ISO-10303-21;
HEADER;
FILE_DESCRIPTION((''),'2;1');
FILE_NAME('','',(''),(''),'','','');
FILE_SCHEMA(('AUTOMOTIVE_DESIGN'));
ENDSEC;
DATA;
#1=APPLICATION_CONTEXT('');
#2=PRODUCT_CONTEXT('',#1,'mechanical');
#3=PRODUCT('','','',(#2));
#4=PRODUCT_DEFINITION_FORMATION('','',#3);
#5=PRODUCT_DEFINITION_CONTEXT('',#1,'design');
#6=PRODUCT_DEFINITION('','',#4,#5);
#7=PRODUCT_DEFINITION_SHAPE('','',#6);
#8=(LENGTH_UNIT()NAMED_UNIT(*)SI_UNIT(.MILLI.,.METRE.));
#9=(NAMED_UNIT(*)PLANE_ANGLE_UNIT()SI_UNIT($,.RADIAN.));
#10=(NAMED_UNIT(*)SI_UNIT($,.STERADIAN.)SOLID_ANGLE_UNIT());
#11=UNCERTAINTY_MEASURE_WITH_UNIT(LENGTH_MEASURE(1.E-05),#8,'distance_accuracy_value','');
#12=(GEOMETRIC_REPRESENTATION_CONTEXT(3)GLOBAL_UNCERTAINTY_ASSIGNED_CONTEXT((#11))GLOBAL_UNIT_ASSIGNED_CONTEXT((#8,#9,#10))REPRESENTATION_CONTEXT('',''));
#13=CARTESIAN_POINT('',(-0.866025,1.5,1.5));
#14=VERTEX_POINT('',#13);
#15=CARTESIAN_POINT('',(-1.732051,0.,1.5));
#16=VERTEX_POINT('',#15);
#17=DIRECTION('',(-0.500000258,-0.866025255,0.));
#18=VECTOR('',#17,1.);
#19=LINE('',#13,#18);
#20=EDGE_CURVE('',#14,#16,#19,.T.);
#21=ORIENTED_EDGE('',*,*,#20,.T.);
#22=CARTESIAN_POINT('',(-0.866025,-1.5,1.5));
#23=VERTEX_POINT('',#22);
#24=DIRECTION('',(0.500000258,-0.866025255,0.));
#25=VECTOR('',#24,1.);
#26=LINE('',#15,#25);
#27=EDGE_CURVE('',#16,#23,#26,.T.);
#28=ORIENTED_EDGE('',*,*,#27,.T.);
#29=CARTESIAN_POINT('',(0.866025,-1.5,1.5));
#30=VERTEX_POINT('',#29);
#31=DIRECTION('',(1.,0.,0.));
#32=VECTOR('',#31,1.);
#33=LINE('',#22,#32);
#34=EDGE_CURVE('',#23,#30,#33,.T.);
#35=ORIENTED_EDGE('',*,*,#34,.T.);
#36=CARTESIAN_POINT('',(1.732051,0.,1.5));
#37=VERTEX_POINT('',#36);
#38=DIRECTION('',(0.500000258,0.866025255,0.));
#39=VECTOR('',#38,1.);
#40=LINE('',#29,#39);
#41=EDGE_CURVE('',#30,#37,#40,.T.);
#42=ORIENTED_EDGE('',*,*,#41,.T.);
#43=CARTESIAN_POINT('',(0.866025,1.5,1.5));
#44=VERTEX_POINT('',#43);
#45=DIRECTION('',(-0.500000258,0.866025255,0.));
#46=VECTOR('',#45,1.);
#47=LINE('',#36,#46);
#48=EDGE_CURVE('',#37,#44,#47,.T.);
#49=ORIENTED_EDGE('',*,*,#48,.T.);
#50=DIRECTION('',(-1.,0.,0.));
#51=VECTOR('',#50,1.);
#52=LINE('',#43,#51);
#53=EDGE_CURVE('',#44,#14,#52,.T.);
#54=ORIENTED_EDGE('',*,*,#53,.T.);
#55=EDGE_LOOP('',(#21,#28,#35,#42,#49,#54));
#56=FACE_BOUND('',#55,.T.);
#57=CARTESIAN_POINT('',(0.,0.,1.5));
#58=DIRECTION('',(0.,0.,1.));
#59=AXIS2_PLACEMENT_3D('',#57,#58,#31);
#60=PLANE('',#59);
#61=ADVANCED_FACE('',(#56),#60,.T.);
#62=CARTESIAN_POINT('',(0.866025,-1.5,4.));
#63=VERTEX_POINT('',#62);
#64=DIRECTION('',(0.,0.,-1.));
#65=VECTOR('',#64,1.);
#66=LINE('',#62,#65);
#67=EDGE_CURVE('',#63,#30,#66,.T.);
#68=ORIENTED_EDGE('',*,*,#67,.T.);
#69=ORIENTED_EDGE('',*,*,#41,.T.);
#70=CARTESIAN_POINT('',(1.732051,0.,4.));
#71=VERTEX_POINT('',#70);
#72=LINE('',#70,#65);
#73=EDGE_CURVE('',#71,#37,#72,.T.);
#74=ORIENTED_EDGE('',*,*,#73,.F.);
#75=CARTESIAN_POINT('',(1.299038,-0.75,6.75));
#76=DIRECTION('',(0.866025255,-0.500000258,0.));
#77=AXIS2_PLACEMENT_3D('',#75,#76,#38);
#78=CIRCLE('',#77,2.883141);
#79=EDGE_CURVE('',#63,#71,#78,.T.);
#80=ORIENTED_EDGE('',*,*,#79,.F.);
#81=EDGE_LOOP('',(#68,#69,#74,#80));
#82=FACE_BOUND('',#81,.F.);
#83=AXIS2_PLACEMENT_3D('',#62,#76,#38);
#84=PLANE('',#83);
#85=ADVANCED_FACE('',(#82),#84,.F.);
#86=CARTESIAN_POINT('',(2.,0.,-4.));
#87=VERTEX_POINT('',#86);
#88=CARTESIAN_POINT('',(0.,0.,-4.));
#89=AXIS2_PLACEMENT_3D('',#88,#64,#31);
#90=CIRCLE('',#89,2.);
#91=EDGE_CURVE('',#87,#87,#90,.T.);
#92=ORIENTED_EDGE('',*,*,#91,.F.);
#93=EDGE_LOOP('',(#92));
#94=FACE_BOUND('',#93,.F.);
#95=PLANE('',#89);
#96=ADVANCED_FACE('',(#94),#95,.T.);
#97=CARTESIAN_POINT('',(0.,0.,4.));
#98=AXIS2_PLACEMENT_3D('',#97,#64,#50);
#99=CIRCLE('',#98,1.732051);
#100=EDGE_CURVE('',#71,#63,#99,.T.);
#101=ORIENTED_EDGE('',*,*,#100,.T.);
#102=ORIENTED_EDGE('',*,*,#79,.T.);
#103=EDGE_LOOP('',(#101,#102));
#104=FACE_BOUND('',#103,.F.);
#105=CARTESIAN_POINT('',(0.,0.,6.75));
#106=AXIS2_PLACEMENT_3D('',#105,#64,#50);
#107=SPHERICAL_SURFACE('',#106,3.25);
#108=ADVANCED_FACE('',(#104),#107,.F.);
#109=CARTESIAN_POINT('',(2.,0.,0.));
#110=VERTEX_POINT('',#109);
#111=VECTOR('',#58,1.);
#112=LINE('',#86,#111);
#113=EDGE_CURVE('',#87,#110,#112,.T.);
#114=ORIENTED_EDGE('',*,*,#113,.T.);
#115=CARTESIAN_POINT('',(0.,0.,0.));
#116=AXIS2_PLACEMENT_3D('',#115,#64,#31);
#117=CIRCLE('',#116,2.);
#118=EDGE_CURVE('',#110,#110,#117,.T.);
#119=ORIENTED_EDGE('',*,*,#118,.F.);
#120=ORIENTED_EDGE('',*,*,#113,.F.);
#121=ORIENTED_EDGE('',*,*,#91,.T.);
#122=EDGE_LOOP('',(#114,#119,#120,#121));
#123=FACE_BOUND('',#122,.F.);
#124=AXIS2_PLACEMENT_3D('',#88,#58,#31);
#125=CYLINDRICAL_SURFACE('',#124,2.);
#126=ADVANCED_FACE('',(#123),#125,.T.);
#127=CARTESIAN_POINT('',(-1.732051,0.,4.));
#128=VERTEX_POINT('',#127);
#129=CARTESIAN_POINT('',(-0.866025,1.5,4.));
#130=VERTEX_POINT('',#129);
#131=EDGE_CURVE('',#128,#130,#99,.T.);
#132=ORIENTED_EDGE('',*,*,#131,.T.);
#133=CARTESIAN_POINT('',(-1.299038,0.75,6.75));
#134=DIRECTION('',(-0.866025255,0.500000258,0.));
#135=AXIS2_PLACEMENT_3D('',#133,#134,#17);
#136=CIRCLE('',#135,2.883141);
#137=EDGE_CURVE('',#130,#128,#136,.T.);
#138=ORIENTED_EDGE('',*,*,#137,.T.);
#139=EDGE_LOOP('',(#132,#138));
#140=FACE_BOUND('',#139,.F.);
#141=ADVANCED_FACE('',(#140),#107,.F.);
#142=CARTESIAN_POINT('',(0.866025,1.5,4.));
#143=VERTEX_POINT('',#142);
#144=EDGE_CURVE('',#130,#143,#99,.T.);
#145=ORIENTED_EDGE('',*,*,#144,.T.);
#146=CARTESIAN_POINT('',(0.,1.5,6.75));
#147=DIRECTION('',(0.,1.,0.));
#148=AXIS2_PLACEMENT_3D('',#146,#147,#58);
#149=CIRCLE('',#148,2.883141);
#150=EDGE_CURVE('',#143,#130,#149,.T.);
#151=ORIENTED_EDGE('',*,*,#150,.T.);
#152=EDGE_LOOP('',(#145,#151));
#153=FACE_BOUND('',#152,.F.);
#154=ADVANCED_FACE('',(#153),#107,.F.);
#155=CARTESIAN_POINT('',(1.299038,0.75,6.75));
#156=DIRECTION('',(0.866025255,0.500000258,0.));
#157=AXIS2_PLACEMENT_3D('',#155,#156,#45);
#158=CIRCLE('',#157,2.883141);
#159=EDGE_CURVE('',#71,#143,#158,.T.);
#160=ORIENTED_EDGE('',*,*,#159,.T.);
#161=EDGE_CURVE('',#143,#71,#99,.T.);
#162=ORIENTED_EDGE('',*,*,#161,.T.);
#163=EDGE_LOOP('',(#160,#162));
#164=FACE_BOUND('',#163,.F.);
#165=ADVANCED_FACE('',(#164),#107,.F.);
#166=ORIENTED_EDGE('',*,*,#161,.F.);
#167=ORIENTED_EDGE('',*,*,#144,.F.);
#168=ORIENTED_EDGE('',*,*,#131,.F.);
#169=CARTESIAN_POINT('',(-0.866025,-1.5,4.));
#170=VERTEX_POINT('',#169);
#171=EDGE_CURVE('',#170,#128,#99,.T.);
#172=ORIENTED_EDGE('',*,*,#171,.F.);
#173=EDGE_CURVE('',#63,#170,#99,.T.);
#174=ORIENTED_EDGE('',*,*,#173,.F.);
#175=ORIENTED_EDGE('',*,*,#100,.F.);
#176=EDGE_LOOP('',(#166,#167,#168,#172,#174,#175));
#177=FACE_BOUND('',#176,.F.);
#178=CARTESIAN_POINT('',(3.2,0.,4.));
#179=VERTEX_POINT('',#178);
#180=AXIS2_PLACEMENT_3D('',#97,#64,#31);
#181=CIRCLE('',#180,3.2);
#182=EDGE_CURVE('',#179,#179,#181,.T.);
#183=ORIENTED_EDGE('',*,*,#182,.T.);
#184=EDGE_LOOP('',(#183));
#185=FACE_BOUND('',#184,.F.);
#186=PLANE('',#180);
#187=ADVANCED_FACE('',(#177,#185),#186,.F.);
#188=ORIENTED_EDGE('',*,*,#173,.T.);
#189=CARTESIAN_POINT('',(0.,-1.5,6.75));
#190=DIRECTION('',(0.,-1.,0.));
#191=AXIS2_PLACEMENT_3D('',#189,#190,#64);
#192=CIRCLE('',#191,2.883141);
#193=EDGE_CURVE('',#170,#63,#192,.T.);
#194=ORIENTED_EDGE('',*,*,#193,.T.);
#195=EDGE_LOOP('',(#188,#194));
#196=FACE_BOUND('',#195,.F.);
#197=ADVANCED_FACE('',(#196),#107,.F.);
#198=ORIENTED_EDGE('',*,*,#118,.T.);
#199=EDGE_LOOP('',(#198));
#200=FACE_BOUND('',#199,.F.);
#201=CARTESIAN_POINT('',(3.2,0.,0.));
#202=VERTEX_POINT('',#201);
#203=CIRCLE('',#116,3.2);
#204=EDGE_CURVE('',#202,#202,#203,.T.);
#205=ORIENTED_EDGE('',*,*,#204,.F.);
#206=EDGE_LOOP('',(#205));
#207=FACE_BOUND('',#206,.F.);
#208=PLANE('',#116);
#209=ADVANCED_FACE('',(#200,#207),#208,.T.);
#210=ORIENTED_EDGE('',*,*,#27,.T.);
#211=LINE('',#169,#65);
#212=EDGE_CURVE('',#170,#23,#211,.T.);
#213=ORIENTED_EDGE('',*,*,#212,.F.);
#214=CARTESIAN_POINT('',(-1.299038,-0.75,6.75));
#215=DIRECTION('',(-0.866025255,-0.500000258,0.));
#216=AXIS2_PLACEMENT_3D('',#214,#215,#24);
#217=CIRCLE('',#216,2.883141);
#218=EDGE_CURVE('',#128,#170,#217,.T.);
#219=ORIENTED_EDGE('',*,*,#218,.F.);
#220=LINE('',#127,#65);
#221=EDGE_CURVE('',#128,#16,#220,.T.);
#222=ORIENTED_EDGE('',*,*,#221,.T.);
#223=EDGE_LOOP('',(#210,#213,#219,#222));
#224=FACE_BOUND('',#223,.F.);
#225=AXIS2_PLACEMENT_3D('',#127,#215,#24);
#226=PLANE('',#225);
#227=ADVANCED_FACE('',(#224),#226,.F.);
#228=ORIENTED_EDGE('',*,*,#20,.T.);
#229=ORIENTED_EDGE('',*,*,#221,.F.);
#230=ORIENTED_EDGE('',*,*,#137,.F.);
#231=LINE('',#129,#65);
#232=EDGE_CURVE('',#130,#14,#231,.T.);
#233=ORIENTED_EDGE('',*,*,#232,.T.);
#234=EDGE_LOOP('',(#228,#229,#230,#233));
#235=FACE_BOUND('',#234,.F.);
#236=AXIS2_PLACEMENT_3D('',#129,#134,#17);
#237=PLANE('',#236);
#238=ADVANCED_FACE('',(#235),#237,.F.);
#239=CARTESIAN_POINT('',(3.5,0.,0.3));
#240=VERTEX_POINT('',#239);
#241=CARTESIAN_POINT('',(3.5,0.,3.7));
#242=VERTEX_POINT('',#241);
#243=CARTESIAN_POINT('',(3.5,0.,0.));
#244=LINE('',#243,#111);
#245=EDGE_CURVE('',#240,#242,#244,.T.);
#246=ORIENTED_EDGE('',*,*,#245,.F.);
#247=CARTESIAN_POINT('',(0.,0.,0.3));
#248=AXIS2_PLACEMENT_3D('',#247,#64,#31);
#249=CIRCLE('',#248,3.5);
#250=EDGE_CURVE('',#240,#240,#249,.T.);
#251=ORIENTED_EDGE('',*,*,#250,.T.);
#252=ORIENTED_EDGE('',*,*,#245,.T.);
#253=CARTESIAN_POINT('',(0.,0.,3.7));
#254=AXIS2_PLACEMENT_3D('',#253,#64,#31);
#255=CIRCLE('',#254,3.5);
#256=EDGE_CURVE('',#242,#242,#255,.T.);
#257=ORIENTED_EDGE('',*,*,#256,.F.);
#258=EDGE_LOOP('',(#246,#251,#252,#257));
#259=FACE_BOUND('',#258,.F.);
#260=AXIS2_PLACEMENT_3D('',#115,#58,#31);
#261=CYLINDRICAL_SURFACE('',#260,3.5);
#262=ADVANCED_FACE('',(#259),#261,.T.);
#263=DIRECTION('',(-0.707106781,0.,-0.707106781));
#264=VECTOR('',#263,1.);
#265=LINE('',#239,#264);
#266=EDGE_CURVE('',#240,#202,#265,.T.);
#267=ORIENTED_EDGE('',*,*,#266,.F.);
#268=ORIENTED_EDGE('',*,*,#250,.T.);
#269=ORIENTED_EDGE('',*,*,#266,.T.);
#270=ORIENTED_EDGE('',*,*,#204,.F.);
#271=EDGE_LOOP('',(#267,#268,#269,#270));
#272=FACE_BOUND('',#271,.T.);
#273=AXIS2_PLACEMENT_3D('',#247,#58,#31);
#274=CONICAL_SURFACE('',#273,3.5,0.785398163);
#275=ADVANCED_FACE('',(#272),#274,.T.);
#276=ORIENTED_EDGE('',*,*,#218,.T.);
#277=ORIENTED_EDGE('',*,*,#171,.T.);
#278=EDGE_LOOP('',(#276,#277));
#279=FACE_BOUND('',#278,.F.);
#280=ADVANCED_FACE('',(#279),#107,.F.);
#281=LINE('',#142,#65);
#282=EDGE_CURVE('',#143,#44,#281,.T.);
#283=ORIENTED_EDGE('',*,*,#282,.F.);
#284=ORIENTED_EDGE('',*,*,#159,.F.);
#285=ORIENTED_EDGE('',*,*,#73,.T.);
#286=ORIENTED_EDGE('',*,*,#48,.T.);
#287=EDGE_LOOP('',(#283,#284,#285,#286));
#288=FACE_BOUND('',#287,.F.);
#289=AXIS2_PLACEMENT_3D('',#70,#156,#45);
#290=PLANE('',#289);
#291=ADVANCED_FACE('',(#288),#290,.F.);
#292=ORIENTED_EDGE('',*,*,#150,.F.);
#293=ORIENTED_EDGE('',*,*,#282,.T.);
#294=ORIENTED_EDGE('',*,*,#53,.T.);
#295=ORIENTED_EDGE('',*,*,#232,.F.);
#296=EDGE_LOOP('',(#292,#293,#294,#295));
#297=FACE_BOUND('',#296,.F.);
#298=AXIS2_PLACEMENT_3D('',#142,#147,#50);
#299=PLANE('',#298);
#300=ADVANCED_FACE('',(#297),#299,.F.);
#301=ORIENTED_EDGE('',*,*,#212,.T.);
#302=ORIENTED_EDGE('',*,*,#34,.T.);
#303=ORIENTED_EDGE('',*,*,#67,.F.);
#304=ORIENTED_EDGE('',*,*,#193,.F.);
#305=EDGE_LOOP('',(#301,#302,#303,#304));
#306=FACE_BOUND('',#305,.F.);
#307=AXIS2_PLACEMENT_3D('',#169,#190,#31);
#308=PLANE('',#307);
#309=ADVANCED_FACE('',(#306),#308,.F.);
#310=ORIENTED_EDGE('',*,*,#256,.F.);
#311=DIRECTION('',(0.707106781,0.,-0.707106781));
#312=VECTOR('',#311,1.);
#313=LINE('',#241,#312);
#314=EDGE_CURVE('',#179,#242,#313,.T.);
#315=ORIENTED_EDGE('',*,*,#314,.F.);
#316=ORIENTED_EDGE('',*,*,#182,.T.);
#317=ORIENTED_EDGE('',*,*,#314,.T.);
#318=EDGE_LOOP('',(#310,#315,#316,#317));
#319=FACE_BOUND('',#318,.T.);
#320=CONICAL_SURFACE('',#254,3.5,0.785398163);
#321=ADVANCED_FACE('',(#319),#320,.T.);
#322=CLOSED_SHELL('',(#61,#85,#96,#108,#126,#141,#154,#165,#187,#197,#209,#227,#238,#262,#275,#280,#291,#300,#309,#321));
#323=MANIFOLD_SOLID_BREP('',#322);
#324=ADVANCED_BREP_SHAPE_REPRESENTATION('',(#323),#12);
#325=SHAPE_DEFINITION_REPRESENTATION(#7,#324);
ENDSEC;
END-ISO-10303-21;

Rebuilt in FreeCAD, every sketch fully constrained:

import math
import FreeCAD as App
import Part
import Sketcher

V = App.Vector
Q = App.Units.Quantity


def edges_at(feature, points):
    """Names of the edges that pass closest to the given points."""
    edges = feature.Shape.Edges
    near = lambda p: min(range(len(edges)), key=lambda i: edges[i].distToShape(Part.Vertex(*p))[0])
    return sorted({f"Edge{near(p) + 1}" for p in points})


def add_polygon(sketch, points):
    """Adds a closed chain of lines whose ends are joined by coincident constraints."""
    first, n = sketch.GeometryCount, len(points)
    for a, b in zip(points, points[1:] + points[:1]):
        sketch.addGeometry(Part.LineSegment(App.Vector(*a, 0), App.Vector(*b, 0)), False)
    for i in range(n):
        sketch.addConstraint(Sketcher.Constraint("Coincident", first + i, 2, first + (i + 1) % n, 1))

doc = App.newDocument("Part")
body = doc.addObject("PartDesign::Body", "Body")

sketch1 = doc.addObject("Sketcher::SketchObject", "Sketch")
body.addObject(sketch1)
sketch1.AttachmentSupport = (doc.XZ_Plane, [""])
sketch1.MapMode = "FlatFace"
add_polygon(sketch1, [(3.5, 4), (0, 4), (0, -4), (2, -4), (2, 0), (3.5, 0)])
sketch1.addConstraint([
    Sketcher.Constraint("Horizontal", 0),
    Sketcher.Constraint("Vertical", 1),
    Sketcher.Constraint("Horizontal", 2),
    Sketcher.Constraint("Vertical", 3),
    Sketcher.Constraint("Horizontal", 4),
    Sketcher.Constraint("Vertical", 5),
    Sketcher.Constraint("Symmetric", 0, 2, 1, 2, -1, 1),
    Sketcher.Constraint("PointOnObject", 3, 2, -1),
    Sketcher.Constraint("DistanceX", 2, 1, 2, 2, Q("2 mm")),
    Sketcher.Constraint("DistanceY", 1, 2, 1, 1, Q("8 mm")),
    Sketcher.Constraint("DistanceX", 0, 2, 0, 1, Q("3.5 mm")),
])
revolution = doc.addObject("PartDesign::Revolution", "Revolution")
body.addObject(revolution)
revolution.Profile = sketch1
revolution.ReferenceAxis = (sketch1, ["V_Axis"])
revolution.Angle = 360

sketch2 = doc.addObject("Sketcher::SketchObject", "Sketch001")
body.addObject(sketch2)
sketch2.AttachmentSupport = (doc.XY_Plane, [""])
sketch2.MapMode = "FlatFace"
sketch2.AttachmentOffset = App.Placement(V(0, 0, 4), App.Rotation())
add_polygon(sketch2, [(1.7, 0), (0.9, 1.5), (-0.9, 1.5), (-1.7, 0), (-0.9, -1.5), (0.9, -1.5)])
sketch2.addConstraint([
    Sketcher.Constraint("Horizontal", 1),
    Sketcher.Constraint("Horizontal", 4),
    Sketcher.Constraint("Symmetric", 0, 2, 3, 2, -1, 1),
    Sketcher.Constraint("Symmetric", 2, 2, 5, 2, -1, 1),
    Sketcher.Constraint("PointOnObject", 2, 2, -1),
    Sketcher.Constraint("Parallel", 2, 5),
    Sketcher.Constraint("Vertical", 1, 2, 3, 2),
    Sketcher.Constraint("Angle", 0, Q("120.000017 deg")),
    Sketcher.Constraint("DistanceY", 3, 2, 1, 2, Q("3 mm")),
    Sketcher.Constraint("DistanceX", 1, 2, 1, 1, Q("1.73205 mm")),
])
pocket1 = doc.addObject("PartDesign::Pocket", "Pocket")
body.addObject(pocket1)
pocket1.Profile = sketch2
pocket1.Length = 2.5

sketch3 = doc.addObject("Sketcher::SketchObject", "Sketch002")
body.addObject(sketch3)
sketch3.AttachmentSupport = (doc.XZ_Plane, [""])
sketch3.MapMode = "FlatFace"
sketch3.addGeometry([
    Part.LineSegment(V(0, 3.5, 0), V(0, 10, 0)),
    Part.ArcOfCircle(Part.Circle(V(0, 6.8, 0), V(0, 0, 1), 3.2), math.radians(90), math.radians(270)),
], False)
sketch3.addConstraint([
    Sketcher.Constraint("Coincident", 0, 1, 1, 2),
    Sketcher.Constraint("Coincident", 1, 1, 0, 2),
    Sketcher.Constraint("Vertical", 0),
    Sketcher.Constraint("PointOnObject", 1, 3, -2),
    Sketcher.Constraint("PointOnObject", 0, 1, -2),
    Sketcher.Constraint("Radius", 1, Q("3.25 mm")),
    Sketcher.Constraint("DistanceY", -1, 1, 1, 1, Q("10 mm")),
])
groove = doc.addObject("PartDesign::Groove", "Groove")
body.addObject(groove)
groove.Profile = sketch3
groove.ReferenceAxis = (sketch3, ["V_Axis"])
groove.Angle = 360
doc.recompute()

chamfer = doc.addObject("PartDesign::Chamfer", "Chamfer")
body.addObject(chamfer)
chamfer.Base = (groove, edges_at(groove, [(-3.5, 0, 4), (-3.5, 0, 0)]))
chamfer.Size = 0.3

doc.recompute()
